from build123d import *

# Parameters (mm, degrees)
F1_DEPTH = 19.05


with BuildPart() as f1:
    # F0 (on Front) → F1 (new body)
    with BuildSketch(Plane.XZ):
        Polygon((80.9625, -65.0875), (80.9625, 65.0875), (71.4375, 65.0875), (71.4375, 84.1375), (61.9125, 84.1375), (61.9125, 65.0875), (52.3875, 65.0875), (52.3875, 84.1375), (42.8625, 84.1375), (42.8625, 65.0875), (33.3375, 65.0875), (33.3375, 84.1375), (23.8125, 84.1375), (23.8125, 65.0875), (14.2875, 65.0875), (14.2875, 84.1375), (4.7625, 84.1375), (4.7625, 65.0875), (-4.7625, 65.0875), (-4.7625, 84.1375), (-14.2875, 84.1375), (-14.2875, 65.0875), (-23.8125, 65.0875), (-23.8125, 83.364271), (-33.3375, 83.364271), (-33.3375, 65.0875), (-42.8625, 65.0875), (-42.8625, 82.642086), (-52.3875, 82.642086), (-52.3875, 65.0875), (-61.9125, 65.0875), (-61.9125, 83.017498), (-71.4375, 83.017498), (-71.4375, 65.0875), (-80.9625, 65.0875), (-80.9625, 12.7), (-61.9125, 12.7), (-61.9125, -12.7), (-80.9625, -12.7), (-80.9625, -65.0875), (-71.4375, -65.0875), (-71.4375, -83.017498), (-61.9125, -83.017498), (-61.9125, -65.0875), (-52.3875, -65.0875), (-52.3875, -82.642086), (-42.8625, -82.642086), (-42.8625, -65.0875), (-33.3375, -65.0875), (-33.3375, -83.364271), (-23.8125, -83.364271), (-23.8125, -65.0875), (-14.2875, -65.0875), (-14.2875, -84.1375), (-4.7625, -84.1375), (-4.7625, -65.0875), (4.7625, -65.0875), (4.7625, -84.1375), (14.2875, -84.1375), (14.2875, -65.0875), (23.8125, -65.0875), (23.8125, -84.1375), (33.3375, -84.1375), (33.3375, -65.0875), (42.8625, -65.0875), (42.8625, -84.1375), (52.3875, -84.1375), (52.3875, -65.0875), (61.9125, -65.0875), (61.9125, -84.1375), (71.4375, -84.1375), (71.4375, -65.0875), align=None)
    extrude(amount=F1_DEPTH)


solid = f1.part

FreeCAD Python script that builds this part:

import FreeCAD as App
import Part
import Sketcher
from FreeCAD import Vector
Q = App.Units.Quantity


def add_polygon(sketch, points):
    """Adds a closed chain of lines whose ends are joined by coincident constraints."""
    first, n = sketch.GeometryCount, len(points)
    for a, b in zip(points, points[1:] + points[:1]):
        sketch.addGeometry(Part.LineSegment(App.Vector(*a, 0), App.Vector(*b, 0)), False)
    for i in range(n):
        sketch.addConstraint(Sketcher.Constraint("Coincident", first + i, 2, first + (i + 1) % n, 1))

doc = App.newDocument("Part")
body = doc.addObject("PartDesign::Body", "Body")

# Sketch on XZ plane
sketch1 = body.newObject("Sketcher::SketchObject", "Sketch")
sketch1.AttachmentSupport = (doc.getObject("XZ_Plane"), [""])
sketch1.MapMode = "FlatFace"
add_polygon(sketch1, [(81, -65), (81, 65), (71, 65), (71, 84), (62, 84), (62, 65), (52, 65), (52, 84), (43, 84), (43, 65), (33, 65), (33, 84), (24, 84), (24, 65), (14, 65), (14, 84), (5, 84), (5, 65), (-5, 65), (-5, 84), (-14, 84), (-14, 65), (-24, 65), (-24, 83), (-33, 83), (-33, 65), (-43, 65), (-43, 83), (-52, 83), (-52, 65), (-62, 65), (-62, 83), (-71, 83), (-71, 65), (-81, 65), (-81, 13), (-62, 13), (-62, -13), (-81, -13), (-81, -65), (-71, -65), (-71, -83), (-62, -83), (-62, -65), (-52, -65), (-52, -83), (-43, -83), (-43, -65), (-33, -65), (-33, -83), (-24, -83), (-24, -65), (-14, -65), (-14, -84), (-5, -84), (-5, -65), (5, -65), (5, -84), (14, -84), (14, -65), (24, -65), (24, -84), (33, -84), (33, -65), (43, -65), (43, -84), (52, -84), (52, -65), (62, -65), (62, -84), (71, -84), (71, -65)])  # lines 0-71
sketch1.addConstraint(Sketcher.Constraint("Vertical", 0))
sketch1.addConstraint(Sketcher.Constraint("Horizontal", 1))
sketch1.addConstraint(Sketcher.Constraint("Vertical", 2))
sketch1.addConstraint(Sketcher.Constraint("Horizontal", 3))
sketch1.addConstraint(Sketcher.Constraint("Vertical", 4))
sketch1.addConstraint(Sketcher.Constraint("Horizontal", 5))
sketch1.addConstraint(Sketcher.Constraint("Vertical", 6))
sketch1.addConstraint(Sketcher.Constraint("Horizontal", 7))
sketch1.addConstraint(Sketcher.Constraint("Vertical", 8))
sketch1.addConstraint(Sketcher.Constraint("Horizontal", 9))
sketch1.addConstraint(Sketcher.Constraint("Vertical", 10))
sketch1.addConstraint(Sketcher.Constraint("Horizontal", 11))
sketch1.addConstraint(Sketcher.Constraint("Vertical", 12))
sketch1.addConstraint(Sketcher.Constraint("Horizontal", 13))
sketch1.addConstraint(Sketcher.Constraint("Vertical", 14))
sketch1.addConstraint(Sketcher.Constraint("Horizontal", 15))
sketch1.addConstraint(Sketcher.Constraint("Vertical", 16))
sketch1.addConstraint(Sketcher.Constraint("Horizontal", 17))
sketch1.addConstraint(Sketcher.Constraint("Vertical", 18))
sketch1.addConstraint(Sketcher.Constraint("Horizontal", 19))
sketch1.addConstraint(Sketcher.Constraint("Vertical", 20))
sketch1.addConstraint(Sketcher.Constraint("Horizontal", 21))
sketch1.addConstraint(Sketcher.Constraint("Vertical", 22))
sketch1.addConstraint(Sketcher.Constraint("Horizontal", 23))
sketch1.addConstraint(Sketcher.Constraint("Vertical", 24))
sketch1.addConstraint(Sketcher.Constraint("Horizontal", 25))
sketch1.addConstraint(Sketcher.Constraint("Vertical", 26))
sketch1.addConstraint(Sketcher.Constraint("Horizontal", 27))
sketch1.addConstraint(Sketcher.Constraint("Vertical", 28))
sketch1.addConstraint(Sketcher.Constraint("Horizontal", 29))
sketch1.addConstraint(Sketcher.Constraint("Vertical", 30))
sketch1.addConstraint(Sketcher.Constraint("Horizontal", 31))
sketch1.addConstraint(Sketcher.Constraint("Vertical", 32))
sketch1.addConstraint(Sketcher.Constraint("Horizontal", 33))
sketch1.addConstraint(Sketcher.Constraint("Vertical", 34))
sketch1.addConstraint(Sketcher.Constraint("Horizontal", 35))
sketch1.addConstraint(Sketcher.Constraint("Vertical", 36))
sketch1.addConstraint(Sketcher.Constraint("Horizontal", 37))
sketch1.addConstraint(Sketcher.Constraint("Vertical", 38))
sketch1.addConstraint(Sketcher.Constraint("Horizontal", 39))
sketch1.addConstraint(Sketcher.Constraint("Vertical", 40))
sketch1.addConstraint(Sketcher.Constraint("Horizontal", 41))
sketch1.addConstraint(Sketcher.Constraint("Vertical", 42))
sketch1.addConstraint(Sketcher.Constraint("Horizontal", 43))
sketch1.addConstraint(Sketcher.Constraint("Vertical", 44))
sketch1.addConstraint(Sketcher.Constraint("Horizontal", 45))
sketch1.addConstraint(Sketcher.Constraint("Vertical", 46))
sketch1.addConstraint(Sketcher.Constraint("Horizontal", 47))
sketch1.addConstraint(Sketcher.Constraint("Vertical", 48))
sketch1.addConstraint(Sketcher.Constraint("Horizontal", 49))
sketch1.addConstraint(Sketcher.Constraint("Vertical", 50))
sketch1.addConstraint(Sketcher.Constraint("Horizontal", 51))
sketch1.addConstraint(Sketcher.Constraint("Vertical", 52))
sketch1.addConstraint(Sketcher.Constraint("Horizontal", 53))
sketch1.addConstraint(Sketcher.Constraint("Vertical", 54))
sketch1.addConstraint(Sketcher.Constraint("Horizontal", 55))
sketch1.addConstraint(Sketcher.Constraint("Vertical", 56))
sketch1.addConstraint(Sketcher.Constraint("Horizontal", 57))
sketch1.addConstraint(Sketcher.Constraint("Vertical", 58))
sketch1.addConstraint(Sketcher.Constraint("Horizontal", 59))
sketch1.addConstraint(Sketcher.Constraint("Vertical", 60))
sketch1.addConstraint(Sketcher.Constraint("Horizontal", 61))
sketch1.addConstraint(Sketcher.Constraint("Vertical", 62))
sketch1.addConstraint(Sketcher.Constraint("Horizontal", 63))
sketch1.addConstraint(Sketcher.Constraint("Vertical", 64))
sketch1.addConstraint(Sketcher.Constraint("Horizontal", 65))
sketch1.addConstraint(Sketcher.Constraint("Vertical", 66))
sketch1.addConstraint(Sketcher.Constraint("Horizontal", 67))
sketch1.addConstraint(Sketcher.Constraint("Vertical", 68))
sketch1.addConstraint(Sketcher.Constraint("Horizontal", 69))
sketch1.addConstraint(Sketcher.Constraint("Vertical", 70))
sketch1.addConstraint(Sketcher.Constraint("Horizontal", 71))
sketch1.addConstraint(Sketcher.Constraint("Symmetric", 0, 2, 38, 2, -1, 1))
sketch1.addConstraint(Sketcher.Constraint("Symmetric", 4, 2, 42, 2, -1, 1))
sketch1.addConstraint(Sketcher.Constraint("Symmetric", 8, 2, 46, 2, -1, 1))
sketch1.addConstraint(Sketcher.Constraint("Symmetric", 12, 2, 50, 2, -1, 1))
sketch1.addConstraint(Sketcher.Constraint("Symmetric", 14, 2, 52, 2, -1, 1))
sketch1.addConstraint(Sketcher.Constraint("Symmetric", 16, 2, 54, 2, -1, 1))
sketch1.addConstraint(Sketcher.Constraint("Symmetric", 18, 2, 56, 2, -1, 1))
sketch1.addConstraint(Sketcher.Constraint("Symmetric", 20, 2, 58, 2, -1, 1))
sketch1.addConstraint(Sketcher.Constraint("Symmetric", 24, 2, 62, 2, -1, 1))
sketch1.addConstraint(Sketcher.Constraint("Symmetric", 28, 2, 66, 2, -1, 1))
sketch1.addConstraint(Sketcher.Constraint("Symmetric", 32, 2, 70, 2, -1, 1))
sketch1.addConstraint(Sketcher.Constraint("Symmetric", 15, 2, 18, 2, -2))
sketch1.addConstraint(Sketcher.Constraint("Symmetric", 13, 2, 20, 2, -2))
sketch1.addConstraint(Sketcher.Constraint("Symmetric", 9, 2, 24, 2, -2))
sketch1.addConstraint(Sketcher.Constraint("Symmetric", 5, 2, 28, 2, -2))
sketch1.addConstraint(Sketcher.Constraint("Symmetric", 1, 2, 32, 2, -2))
sketch1.addConstraint(Sketcher.Constraint("Symmetric", 34, 2, 37, 2, -1))
sketch1.addConstraint(Sketcher.Constraint("Symmetric", 31, 2, 40, 2, -1))
sketch1.addConstraint(Sketcher.Constraint("Symmetric", 27, 2, 44, 2, -1))
sketch1.addConstraint(Sketcher.Constraint("Symmetric", 23, 2, 48, 2, -1))
sketch1.addConstraint(Sketcher.Constraint("Symmetric", 11, 2, 60, 2, -1))
sketch1.addConstraint(Sketcher.Constraint("Symmetric", 7, 2, 64, 2, -1))
sketch1.addConstraint(Sketcher.Constraint("Symmetric", 3, 2, 68, 2, -1))
sketch1.addConstraint(Sketcher.Constraint("Horizontal", 1, 2, 4, 2))
sketch1.addConstraint(Sketcher.Constraint("Horizontal", 3, 2, 6, 2))
sketch1.addConstraint(Sketcher.Constraint("Horizontal", 5, 2, 8, 2))
sketch1.addConstraint(Sketcher.Constraint("Horizontal", 7, 2, 10, 2))
sketch1.addConstraint(Sketcher.Constraint("Horizontal", 9, 2, 12, 2))
sketch1.addConstraint(Sketcher.Constraint("Horizontal", 11, 2, 14, 2))
sketch1.addConstraint(Sketcher.Constraint("Horizontal", 13, 2, 16, 2))
sketch1.addConstraint(Sketcher.Constraint("Vertical", 30, 2, 35, 2))
sketch1.addConstraint(Sketcher.Constraint("Vertical", 36, 2, 41, 2))
sketch1.addConstraint(Sketcher.Constraint("Vertical", 26, 2, 45, 2))
sketch1.addConstraint(Sketcher.Constraint("Vertical", 22, 2, 49, 2))
sketch1.addConstraint(Sketcher.Constraint("Equal", 1, 3))
sketch1.addConstraint(Sketcher.Constraint("Equal", 3, 5))
sketch1.addConstraint(Sketcher.Constraint("Equal", 5, 7))
sketch1.addConstraint(Sketcher.Constraint("Equal", 7, 9))
sketch1.addConstraint(Sketcher.Constraint("Equal", 9, 11))
sketch1.addConstraint(Sketcher.Constraint("Equal", 11, 13))
sketch1.addConstraint(Sketcher.Constraint("Equal", 13, 15))
sketch1.addConstraint(Sketcher.Constraint("Equal", 15, 17))
sketch1.addConstraint(Sketcher.Constraint("Equal", 37, 2))
sketch1.addConstraint(Sketcher.Constraint("DistanceY", 36, 2, 36, 1, Q("1 in")))
sketch1.addConstraint(Sketcher.Constraint("DistanceX", 35, 1, 35, 2, Q("0.75 in")))
sketch1.addConstraint(Sketcher.Constraint("DistanceY", 0, 1, 0, 2, Q("5.125 in")))
sketch1.addConstraint(Sketcher.Constraint("DistanceY", 22, 1, 22, 2, Q("18.276771 mm")))
sketch1.addConstraint(Sketcher.Constraint("DistanceY", -1, 1, 30, 2, Q("83.017498 mm")))
sketch1.addConstraint(Sketcher.Constraint("DistanceY", 26, 1, 26, 2, Q("17.554586 mm")))
pad1 = body.newObject("PartDesign::Pad", "Pad")
pad1.Profile = sketch1
pad1.Length = Q("0.75 in")

doc.recompute()
